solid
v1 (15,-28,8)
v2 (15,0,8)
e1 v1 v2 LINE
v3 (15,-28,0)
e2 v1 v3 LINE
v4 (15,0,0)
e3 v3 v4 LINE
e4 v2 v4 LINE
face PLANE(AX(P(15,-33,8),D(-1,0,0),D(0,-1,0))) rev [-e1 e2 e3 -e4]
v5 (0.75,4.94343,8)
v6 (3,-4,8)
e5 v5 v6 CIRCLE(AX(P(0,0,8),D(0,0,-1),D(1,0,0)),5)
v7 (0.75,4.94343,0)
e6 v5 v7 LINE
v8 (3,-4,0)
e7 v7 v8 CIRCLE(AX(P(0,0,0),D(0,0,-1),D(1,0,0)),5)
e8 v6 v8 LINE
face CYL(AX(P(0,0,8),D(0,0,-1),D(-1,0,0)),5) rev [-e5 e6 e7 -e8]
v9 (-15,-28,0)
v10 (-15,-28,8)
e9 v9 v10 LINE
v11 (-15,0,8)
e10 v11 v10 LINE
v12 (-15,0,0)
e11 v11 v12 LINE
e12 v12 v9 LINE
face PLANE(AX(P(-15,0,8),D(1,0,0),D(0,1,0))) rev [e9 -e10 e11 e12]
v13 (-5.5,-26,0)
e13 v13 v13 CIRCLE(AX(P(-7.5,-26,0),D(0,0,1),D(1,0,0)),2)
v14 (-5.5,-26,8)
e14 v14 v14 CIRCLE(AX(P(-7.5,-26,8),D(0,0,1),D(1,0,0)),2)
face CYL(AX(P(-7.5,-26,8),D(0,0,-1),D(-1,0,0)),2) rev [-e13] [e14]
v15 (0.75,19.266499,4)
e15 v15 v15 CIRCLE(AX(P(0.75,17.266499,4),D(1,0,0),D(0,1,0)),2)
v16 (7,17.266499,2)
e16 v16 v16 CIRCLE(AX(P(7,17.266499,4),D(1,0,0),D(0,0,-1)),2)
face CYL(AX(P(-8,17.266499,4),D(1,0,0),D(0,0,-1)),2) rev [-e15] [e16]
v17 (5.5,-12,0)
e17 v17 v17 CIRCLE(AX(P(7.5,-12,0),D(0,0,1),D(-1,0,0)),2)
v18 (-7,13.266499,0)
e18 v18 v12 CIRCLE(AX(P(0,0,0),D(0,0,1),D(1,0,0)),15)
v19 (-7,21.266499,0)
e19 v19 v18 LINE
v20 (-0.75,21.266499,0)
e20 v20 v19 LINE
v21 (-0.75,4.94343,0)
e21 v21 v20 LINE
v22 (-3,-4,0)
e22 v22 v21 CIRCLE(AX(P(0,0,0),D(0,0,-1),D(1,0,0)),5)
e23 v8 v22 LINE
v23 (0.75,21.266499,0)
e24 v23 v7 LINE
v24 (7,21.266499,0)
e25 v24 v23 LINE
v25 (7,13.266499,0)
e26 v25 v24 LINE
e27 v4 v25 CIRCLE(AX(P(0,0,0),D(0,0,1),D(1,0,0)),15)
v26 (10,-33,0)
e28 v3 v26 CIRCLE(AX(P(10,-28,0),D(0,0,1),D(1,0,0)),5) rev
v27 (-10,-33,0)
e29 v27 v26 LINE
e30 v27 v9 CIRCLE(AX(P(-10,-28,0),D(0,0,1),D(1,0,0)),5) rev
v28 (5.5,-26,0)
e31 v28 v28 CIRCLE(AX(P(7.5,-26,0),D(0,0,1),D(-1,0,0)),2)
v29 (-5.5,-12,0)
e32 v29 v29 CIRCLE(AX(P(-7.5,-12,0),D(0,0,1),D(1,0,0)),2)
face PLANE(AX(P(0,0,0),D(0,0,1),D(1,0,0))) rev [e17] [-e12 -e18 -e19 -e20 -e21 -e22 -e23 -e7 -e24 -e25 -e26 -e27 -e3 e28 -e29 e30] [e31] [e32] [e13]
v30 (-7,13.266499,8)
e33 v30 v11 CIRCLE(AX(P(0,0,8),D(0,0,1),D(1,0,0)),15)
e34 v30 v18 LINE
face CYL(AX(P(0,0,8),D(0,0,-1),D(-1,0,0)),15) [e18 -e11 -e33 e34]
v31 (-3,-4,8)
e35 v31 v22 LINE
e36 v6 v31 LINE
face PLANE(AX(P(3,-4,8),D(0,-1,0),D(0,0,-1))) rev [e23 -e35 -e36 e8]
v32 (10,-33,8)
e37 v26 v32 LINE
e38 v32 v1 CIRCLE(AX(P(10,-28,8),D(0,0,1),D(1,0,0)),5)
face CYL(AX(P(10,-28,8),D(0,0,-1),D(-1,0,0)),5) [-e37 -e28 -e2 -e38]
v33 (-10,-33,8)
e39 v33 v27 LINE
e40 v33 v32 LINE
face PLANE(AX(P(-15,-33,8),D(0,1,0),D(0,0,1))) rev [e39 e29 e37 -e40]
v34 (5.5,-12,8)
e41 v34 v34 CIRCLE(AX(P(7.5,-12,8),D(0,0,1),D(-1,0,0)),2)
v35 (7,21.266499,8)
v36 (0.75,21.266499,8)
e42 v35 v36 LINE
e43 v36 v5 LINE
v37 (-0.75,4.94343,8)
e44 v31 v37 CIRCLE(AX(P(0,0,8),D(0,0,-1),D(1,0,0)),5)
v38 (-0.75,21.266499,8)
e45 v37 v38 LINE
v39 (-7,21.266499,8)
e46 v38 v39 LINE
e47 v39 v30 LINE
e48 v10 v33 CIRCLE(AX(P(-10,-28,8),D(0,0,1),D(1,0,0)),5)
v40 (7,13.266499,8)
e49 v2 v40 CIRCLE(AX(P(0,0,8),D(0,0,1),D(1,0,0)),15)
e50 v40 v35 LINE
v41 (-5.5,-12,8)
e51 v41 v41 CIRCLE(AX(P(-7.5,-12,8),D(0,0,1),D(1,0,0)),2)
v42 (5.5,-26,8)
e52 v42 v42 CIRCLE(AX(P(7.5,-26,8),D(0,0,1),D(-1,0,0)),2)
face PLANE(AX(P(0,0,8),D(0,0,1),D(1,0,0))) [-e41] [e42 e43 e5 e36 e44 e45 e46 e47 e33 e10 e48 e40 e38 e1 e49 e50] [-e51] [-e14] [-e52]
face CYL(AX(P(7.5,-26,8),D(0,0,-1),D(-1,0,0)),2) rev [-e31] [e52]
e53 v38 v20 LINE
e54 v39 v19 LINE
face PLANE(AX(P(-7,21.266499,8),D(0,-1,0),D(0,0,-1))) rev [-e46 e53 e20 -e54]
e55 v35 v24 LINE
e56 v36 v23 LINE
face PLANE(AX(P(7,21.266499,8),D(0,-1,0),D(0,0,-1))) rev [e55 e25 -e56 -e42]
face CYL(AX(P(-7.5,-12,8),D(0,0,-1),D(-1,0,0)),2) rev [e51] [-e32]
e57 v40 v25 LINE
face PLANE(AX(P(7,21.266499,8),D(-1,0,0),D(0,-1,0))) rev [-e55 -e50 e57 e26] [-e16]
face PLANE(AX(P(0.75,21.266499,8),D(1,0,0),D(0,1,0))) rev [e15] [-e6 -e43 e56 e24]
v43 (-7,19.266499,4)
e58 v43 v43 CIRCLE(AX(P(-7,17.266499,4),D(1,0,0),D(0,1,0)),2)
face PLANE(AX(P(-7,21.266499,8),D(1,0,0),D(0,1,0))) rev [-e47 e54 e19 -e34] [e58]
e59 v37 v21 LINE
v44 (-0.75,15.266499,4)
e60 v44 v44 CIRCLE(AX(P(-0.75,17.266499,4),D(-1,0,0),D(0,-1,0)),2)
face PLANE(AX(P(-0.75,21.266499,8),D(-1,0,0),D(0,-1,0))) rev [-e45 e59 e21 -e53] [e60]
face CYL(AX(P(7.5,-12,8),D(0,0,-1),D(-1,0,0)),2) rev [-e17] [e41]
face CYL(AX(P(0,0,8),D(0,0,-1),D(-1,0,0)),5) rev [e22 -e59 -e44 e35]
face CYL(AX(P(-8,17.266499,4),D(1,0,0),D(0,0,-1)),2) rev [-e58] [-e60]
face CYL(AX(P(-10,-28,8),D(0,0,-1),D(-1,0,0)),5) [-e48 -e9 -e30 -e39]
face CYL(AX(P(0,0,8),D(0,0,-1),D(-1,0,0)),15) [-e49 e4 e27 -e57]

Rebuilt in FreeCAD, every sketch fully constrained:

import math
import FreeCAD as App
import Part
import Sketcher

V = App.Vector
Q = App.Units.Quantity


def edges_at(feature, points):
    """Names of the edges that pass closest to the given points."""
    edges = feature.Shape.Edges
    near = lambda p: min(range(len(edges)), key=lambda i: edges[i].distToShape(Part.Vertex(*p))[0])
    return sorted({f"Edge{near(p) + 1}" for p in points})

doc = App.newDocument("Part")
params = doc.addObject("Spreadsheet::Sheet", "Params")
for row, (alias, value) in enumerate([
    ("sketch1_diameter", "4 mm"),
    ("sketch1_radius", "15 mm"),
    ("sketch1_radius2", "5 mm"),
    ("sketch1_width", "6 mm"),
    ("sketch1_height", "33 mm"),
    ("pad1_length", "8 mm"),
    ("sketch2_diameter", "4 mm"),
    ("pocket1_length", "15 mm"),
    ("fillet_radius", "5 mm"),
], start=1):
    params.set(f"A{row}", alias)
    params.set(f"B{row}", "=" + value)
    params.setAlias(f"B{row}", alias)

body = doc.addObject("PartDesign::Body", "Body")

sketch1 = body.newObject("Sketcher::SketchObject", "Sketch")
sketch1.AttachmentSupport = (doc.getObject("XY_Plane"), [""])
sketch1.MapMode = "FlatFace"
sketch1.addGeometry(Part.LineSegment(V(-15, 0, 0), V(-15, -33, 0)), False)
sketch1.addGeometry(Part.LineSegment(V(-15, -33, 0), V(15, -33, 0)), False)
sketch1.addGeometry(Part.LineSegment(V(15, -33, 0), V(15, 0, 0)), False)
sketch1.addGeometry(Part.ArcOfCircle(Part.Circle(V(0, 0, 0), V(0, 0, 1), 15), math.radians(0), math.radians(62)), False)
sketch1.addGeometry(Part.LineSegment(V(7, 13.3, 0), V(7, 21.3, 0)), False)
sketch1.addGeometry(Part.LineSegment(V(7, 21.3, 0), V(0.8, 21.3, 0)), False)
sketch1.addGeometry(Part.LineSegment(V(0.8, 21.3, 0), V(0.8, 4.9, 0)), False)
sketch1.addGeometry(Part.ArcOfCircle(Part.Circle(V(0, 0, 0), V(0, 0, 1), 5), math.radians(-53), math.radians(81)), False)
sketch1.addGeometry(Part.LineSegment(V(3, -4, 0), V(-3, -4, 0)), False)
sketch1.addGeometry(Part.ArcOfCircle(Part.Circle(V(0, 0, 0), V(0, 0, 1), 5), math.radians(99), math.radians(233)), False)
sketch1.addGeometry(Part.LineSegment(V(-0.8, 4.9, 0), V(-0.8, 21.3, 0)), False)
sketch1.addGeometry(Part.LineSegment(V(-0.8, 21.3, 0), V(-7, 21.3, 0)), False)
sketch1.addGeometry(Part.LineSegment(V(-7, 21.3, 0), V(-7, 13.3, 0)), False)
sketch1.addGeometry(Part.ArcOfCircle(Part.Circle(V(0, 0, 0), V(0, 0, 1), 15), math.radians(118), math.radians(180)), False)
sketch1.addGeometry(Part.Circle(V(-7.5, -26, 0), V(0, 0, 1), 2), False)
sketch1.addGeometry(Part.Circle(V(7.5, -26, 0), V(0, 0, 1), 2), False)
sketch1.addGeometry(Part.Circle(V(-7.5, -12, 0), V(0, 0, 1), 2), False)
sketch1.addGeometry(Part.Circle(V(7.5, -12, 0), V(0, 0, 1), 2), False)
sketch1.addConstraint(Sketcher.Constraint("Coincident", 0, 2, 1, 1))
sketch1.addConstraint(Sketcher.Constraint("Coincident", 1, 2, 2, 1))
sketch1.addConstraint(Sketcher.Constraint("Tangent", 2, 2, 3, 1))
sketch1.addConstraint(Sketcher.Constraint("Coincident", 3, 2, 4, 1))
sketch1.addConstraint(Sketcher.Constraint("Coincident", 4, 2, 5, 1))
sketch1.addConstraint(Sketcher.Constraint("Coincident", 5, 2, 6, 1))
sketch1.addConstraint(Sketcher.Constraint("Coincident", 6, 2, 7, 2))
sketch1.addConstraint(Sketcher.Constraint("Coincident", 7, 1, 8, 1))
sketch1.addConstraint(Sketcher.Constraint("Coincident", 8, 2, 9, 2))
sketch1.addConstraint(Sketcher.Constraint("Coincident", 9, 1, 10, 1))
sketch1.addConstraint(Sketcher.Constraint("Coincident", 10, 2, 11, 1))
sketch1.addConstraint(Sketcher.Constraint("Coincident", 11, 2, 12, 1))
sketch1.addConstraint(Sketcher.Constraint("Coincident", 12, 2, 13, 1))
sketch1.addConstraint(Sketcher.Constraint("Tangent", 13, 2, 0, 1))
sketch1.addConstraint(Sketcher.Constraint("Vertical", 0))
sketch1.addConstraint(Sketcher.Constraint("Horizontal", 1))
sketch1.addConstraint(Sketcher.Constraint("Vertical", 2))
sketch1.addConstraint(Sketcher.Constraint("Vertical", 4))
sketch1.addConstraint(Sketcher.Constraint("Horizontal", 5))
sketch1.addConstraint(Sketcher.Constraint("Vertical", 6))
sketch1.addConstraint(Sketcher.Constraint("Horizontal", 8))
sketch1.addConstraint(Sketcher.Constraint("Vertical", 10))
sketch1.addConstraint(Sketcher.Constraint("Horizontal", 11))
sketch1.addConstraint(Sketcher.Constraint("Vertical", 12))
sketch1.addConstraint(Sketcher.Constraint("Coincident", 3, 3, -1, 1))
sketch1.addConstraint(Sketcher.Constraint("Coincident", 7, 3, -1, 1))
sketch1.addConstraint(Sketcher.Constraint("Coincident", 9, 3, -1, 1))
sketch1.addConstraint(Sketcher.Constraint("Coincident", 13, 3, -1, 1))
sketch1.addConstraint(Sketcher.Constraint("Equal", 7, 9))
sketch1.addConstraint(Sketcher.Constraint("Equal", 3, 13))
sketch1.addConstraint(Sketcher.Constraint("Equal", 14, 15))
sketch1.addConstraint(Sketcher.Constraint("Equal", 15, 16))
sketch1.addConstraint(Sketcher.Constraint("Equal", 16, 17))
sketch1.addConstraint(Sketcher.Constraint("Symmetric", 14, 3, 15, 3, -2))
sketch1.addConstraint(Sketcher.Constraint("Symmetric", 16, 3, 17, 3, -2))
sketch1.addConstraint(Sketcher.Constraint("Symmetric", 5, 2, 10, 2, -2))
sketch1.addConstraint(Sketcher.Constraint("Horizontal", 3, 2, 12, 2))
sketch1.addConstraint(Sketcher.Constraint("Vertical", 14, 3, 16, 3))
sketch1.addConstraint(Sketcher.Constraint("Diameter", 14, Q("4 mm")))
sketch1.addConstraint(Sketcher.Constraint("Radius", 3, Q("15 mm")))
sketch1.addConstraint(Sketcher.Constraint("Radius", 7, Q("5 mm")))
sketch1.addConstraint(Sketcher.Constraint("DistanceX", 8, 2, 8, 1, Q("6 mm")))
sketch1.addConstraint(Sketcher.Constraint("DistanceY", 0, 2, 0, 1, Q("33 mm")))
sketch1.addConstraint(Sketcher.Constraint("DistanceY", 4, 1, 4, 2, Q("8 mm")))
sketch1.addConstraint(Sketcher.Constraint("DistanceY", 14, 3, -1, 1, Q("26 mm")))
sketch1.addConstraint(Sketcher.Constraint("DistanceY", 16, 3, -1, 1, Q("12 mm")))
sketch1.addConstraint(Sketcher.Constraint("DistanceX", -1, 1, 3, 2, Q("7 mm")))
sketch1.addConstraint(Sketcher.Constraint("DistanceX", 14, 3, 15, 3, Q("15 mm")))
sketch1.addConstraint(Sketcher.Constraint("DistanceX", 5, 2, 5, 1, Q("6.25 mm")))
sketch1.setExpression("Constraints[38]", "Params.sketch1_diameter")
sketch1.setExpression("Constraints[39]", "Params.sketch1_radius")
sketch1.setExpression("Constraints[40]", "Params.sketch1_radius2")
sketch1.setExpression("Constraints[41]", "Params.sketch1_width")
sketch1.setExpression("Constraints[42]", "Params.sketch1_height")
pad1 = body.newObject("PartDesign::Pad", "Pad")
pad1.Profile = sketch1
pad1.setExpression("Length", "Params.pad1_length")

sketch2 = body.newObject("Sketcher::SketchObject", "Sketch001")
sketch2.AttachmentSupport = (doc.getObject("YZ_Plane"), [""])
sketch2.MapMode = "FlatFace"
sketch2.AttachmentOffset = App.Placement(V(0, 0, 7), App.Rotation())
sketch2.addGeometry(Part.Circle(V(17.3, 4, 0), V(0, 0, 1), 2), False)
sketch2.addConstraint(Sketcher.Constraint("Diameter", 0, Q("4 mm")))
sketch2.addConstraint(Sketcher.Constraint("DistanceY", -1, 1, 0, 3, Q("4 mm")))
sketch2.addConstraint(Sketcher.Constraint("DistanceX", -1, 1, 0, 3, Q("17.266499 mm")))
sketch2.setExpression("Constraints[0]", "Params.sketch2_diameter")
pocket1 = body.newObject("PartDesign::Pocket", "Pocket")
pocket1.Profile = sketch2
pocket1.setExpression("Length", "Params.pocket1_length")
doc.recompute()

fillet = body.newObject("PartDesign::Fillet", "Fillet")
fillet.Base = (pocket1, edges_at(pocket1, [(15, -33, 4), (-15, -33, 4)]))
fillet.setExpression("Radius", "Params.fillet_radius")

doc.recompute()
